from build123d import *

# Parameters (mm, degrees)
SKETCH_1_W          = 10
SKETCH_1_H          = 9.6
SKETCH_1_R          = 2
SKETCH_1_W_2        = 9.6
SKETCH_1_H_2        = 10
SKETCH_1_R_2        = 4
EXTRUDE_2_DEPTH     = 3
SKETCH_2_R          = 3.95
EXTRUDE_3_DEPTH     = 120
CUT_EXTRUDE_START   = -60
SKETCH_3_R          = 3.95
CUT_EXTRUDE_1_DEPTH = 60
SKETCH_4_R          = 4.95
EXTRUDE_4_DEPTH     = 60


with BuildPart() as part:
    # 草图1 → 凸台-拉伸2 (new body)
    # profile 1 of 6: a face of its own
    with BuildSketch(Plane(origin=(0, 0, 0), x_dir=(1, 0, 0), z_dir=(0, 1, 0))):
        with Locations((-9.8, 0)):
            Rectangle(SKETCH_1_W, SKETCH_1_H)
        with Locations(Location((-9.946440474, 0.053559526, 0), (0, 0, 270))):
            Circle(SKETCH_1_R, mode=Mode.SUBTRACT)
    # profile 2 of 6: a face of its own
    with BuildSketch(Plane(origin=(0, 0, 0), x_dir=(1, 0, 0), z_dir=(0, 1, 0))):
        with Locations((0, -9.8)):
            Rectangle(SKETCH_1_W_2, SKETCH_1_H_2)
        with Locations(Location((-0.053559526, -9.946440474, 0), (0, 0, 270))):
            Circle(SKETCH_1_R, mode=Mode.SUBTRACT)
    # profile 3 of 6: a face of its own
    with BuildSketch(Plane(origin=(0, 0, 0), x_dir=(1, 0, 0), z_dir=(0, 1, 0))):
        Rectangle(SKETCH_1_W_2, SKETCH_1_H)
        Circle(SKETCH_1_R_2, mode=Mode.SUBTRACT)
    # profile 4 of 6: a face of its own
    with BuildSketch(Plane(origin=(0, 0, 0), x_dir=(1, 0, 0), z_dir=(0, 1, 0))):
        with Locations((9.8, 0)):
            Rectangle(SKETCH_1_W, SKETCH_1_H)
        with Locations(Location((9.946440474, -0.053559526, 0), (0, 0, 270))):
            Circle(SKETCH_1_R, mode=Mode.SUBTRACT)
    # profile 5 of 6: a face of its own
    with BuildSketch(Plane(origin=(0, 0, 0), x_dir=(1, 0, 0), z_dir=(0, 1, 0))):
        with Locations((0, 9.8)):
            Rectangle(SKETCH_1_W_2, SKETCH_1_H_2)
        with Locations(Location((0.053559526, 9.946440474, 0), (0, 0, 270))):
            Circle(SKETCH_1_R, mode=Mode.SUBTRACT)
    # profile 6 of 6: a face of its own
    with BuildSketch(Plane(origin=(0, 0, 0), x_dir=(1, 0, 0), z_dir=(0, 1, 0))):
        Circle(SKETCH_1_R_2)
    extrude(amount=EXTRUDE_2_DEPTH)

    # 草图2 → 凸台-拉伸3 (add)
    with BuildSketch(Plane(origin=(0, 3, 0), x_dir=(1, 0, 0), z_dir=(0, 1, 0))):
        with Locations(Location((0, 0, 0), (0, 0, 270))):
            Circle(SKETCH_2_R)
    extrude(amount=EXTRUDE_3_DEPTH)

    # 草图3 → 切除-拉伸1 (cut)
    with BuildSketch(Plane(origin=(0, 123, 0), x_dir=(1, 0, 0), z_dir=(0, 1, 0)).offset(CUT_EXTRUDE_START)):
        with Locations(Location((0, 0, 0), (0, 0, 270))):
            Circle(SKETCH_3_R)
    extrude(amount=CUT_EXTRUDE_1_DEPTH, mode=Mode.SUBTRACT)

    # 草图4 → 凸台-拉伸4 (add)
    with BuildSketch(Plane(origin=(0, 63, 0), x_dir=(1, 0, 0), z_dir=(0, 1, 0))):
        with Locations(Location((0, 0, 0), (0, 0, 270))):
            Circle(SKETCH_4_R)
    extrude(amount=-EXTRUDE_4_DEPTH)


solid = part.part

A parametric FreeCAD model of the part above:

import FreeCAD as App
import Part
import Sketcher

V = App.Vector


def add_polygon(sketch, points):
    """Adds a closed chain of lines whose ends are joined by coincident constraints."""
    first, n = sketch.GeometryCount, len(points)
    for a, b in zip(points, points[1:] + points[:1]):
        sketch.addGeometry(Part.LineSegment(App.Vector(*a, 0), App.Vector(*b, 0)), False)
    for i in range(n):
        sketch.addConstraint(Sketcher.Constraint("Coincident", first + i, 2, first + (i + 1) % n, 1))

doc = App.newDocument("Part")
params = doc.addObject("Spreadsheet::Sheet", "Params")
for row, (alias, value) in enumerate([
    ("sketch1_diameter", "4 mm"),
    ("sketch1_width", "10 mm"),
    ("sketch1_width2", "9.6 mm"),
    ("pad1_length", "3 mm"),
    ("sketch2_diameter", "7.9 mm"),
    ("pad2_length", "120 mm"),
    ("sketch3_diameter", "7.9 mm"),
    ("pocket1_length", "60 mm"),
    ("sketch4_diameter", "9.9 mm"),
    ("pad3_length", "60 mm"),
], start=1):
    params.set(f"A{row}", alias)
    params.set(f"B{row}", "=" + value)
    params.setAlias(f"B{row}", alias)

body = doc.addObject("PartDesign::Body", "Body")

# Sketch on XZ plane
sketch1 = doc.addObject("Sketcher::SketchObject", "Sketch")
body.addObject(sketch1)
sketch1.AttachmentSupport = (doc.XZ_Plane, [""])
sketch1.MapMode = "FlatFace"
add_polygon(sketch1, [(-14.8, -4.8), (-14.8, 4.8), (-4.8, 4.8), (-4.8, 14.8), (4.8, 14.8), (4.8, 4.8), (14.8, 4.8), (14.8, -4.8), (4.8, -4.8), (4.8, -14.8), (-4.8, -14.8), (-4.8, -4.8)])  # lines 0-11
sketch1.addGeometry(Part.Circle(V(-9.9, -0.1, 0), V(0, 0, 1), 2), False)  # 12
sketch1.addGeometry(Part.Circle(V(-0.1, 9.9, 0), V(0, 0, 1), 2), False)  # 13
sketch1.addGeometry(Part.Circle(V(0.1, -9.9, 0), V(0, 0, 1), 2), False)  # 14
sketch1.addGeometry(Part.Circle(V(9.9, 0.1, 0), V(0, 0, 1), 2), False)  # 15
sketch1.addConstraint([
    Sketcher.Constraint("Vertical", 0),
    Sketcher.Constraint("Horizontal", 1),
    Sketcher.Constraint("Vertical", 2),
    Sketcher.Constraint("Horizontal", 3),
    Sketcher.Constraint("Vertical", 4),
    Sketcher.Constraint("Horizontal", 5),
    Sketcher.Constraint("Vertical", 6),
    Sketcher.Constraint("Horizontal", 7),
    Sketcher.Constraint("Vertical", 8),
    Sketcher.Constraint("Horizontal", 9),
    Sketcher.Constraint("Vertical", 10),
    Sketcher.Constraint("Horizontal", 11),
    Sketcher.Constraint("Equal", 12, 13),
    Sketcher.Constraint("Equal", 13, 14),
    Sketcher.Constraint("Equal", 14, 15),
    Sketcher.Constraint("Symmetric", 13, 3, 14, 3, -1, 1),
    Sketcher.Constraint("Symmetric", 12, 3, 15, 3, -1, 1),
    Sketcher.Constraint("Symmetric", 0, 2, 6, 2, -1, 1),
    Sketcher.Constraint("Symmetric", 2, 2, 8, 2, -1, 1),
    Sketcher.Constraint("Symmetric", 4, 2, 10, 2, -1, 1),
    Sketcher.Constraint("Symmetric", 1, 2, 4, 2, -2),
    Sketcher.Constraint("Equal", 9, 0),
    Sketcher.Constraint("Equal", 11, 2),
    Sketcher.Constraint("Diameter", 12, 4.0),
    Sketcher.Constraint("DistanceX", 1, 1, 1, 2, 10.0),
    Sketcher.Constraint("DistanceX", 3, 1, 3, 2, 9.6),
    Sketcher.Constraint("DistanceY", 12, 3, 13, 3, 10.0),
    Sketcher.Constraint("DistanceX", 12, 3, 14, 3, 10.0),
    Sketcher.Constraint("DistanceX", 12, 3, -1, 1, 9.94644),
    Sketcher.Constraint("DistanceY", 12, 3, -1, 1, 0.05356),
])
sketch1.setExpression("Constraints[35]", "Params.sketch1_diameter")
sketch1.setExpression("Constraints[36]", "Params.sketch1_width")
sketch1.setExpression("Constraints[37]", "Params.sketch1_width2")
pad1 = doc.addObject("PartDesign::Pad", "Pad")
body.addObject(pad1)
pad1.Profile = sketch1
pad1.setExpression("Length", "Params.pad1_length")
pad1.Reversed = True

# Sketch on XZ plane
sketch2 = doc.addObject("Sketcher::SketchObject", "Sketch001")
body.addObject(sketch2)
sketch2.AttachmentSupport = (doc.XZ_Plane, [""])
sketch2.MapMode = "FlatFace"
sketch2.AttachmentOffset = App.Placement(V(0, 0, -3), App.Rotation())
sketch2.addGeometry(Part.Circle(V(0, 0, 0), V(0, 0, 1), 4), False)
sketch2.addConstraint([
    Sketcher.Constraint("Coincident", 0, 3, -1, 1),
    Sketcher.Constraint("Diameter", 0, 7.9),
])
sketch2.setExpression("Constraints[1]", "Params.sketch2_diameter")
pad2 = doc.addObject("PartDesign::Pad", "Pad001")
body.addObject(pad2)
pad2.Profile = sketch2
pad2.setExpression("Length", "Params.pad2_length")
pad2.Reversed = True

# Sketch on XZ plane
sketch3 = doc.addObject("Sketcher::SketchObject", "Sketch002")
body.addObject(sketch3)
sketch3.AttachmentSupport = (doc.XZ_Plane, [""])
sketch3.MapMode = "FlatFace"
sketch3.AttachmentOffset = App.Placement(V(0, 0, -63), App.Rotation())
sketch3.addGeometry(Part.Circle(V(0, 0, 0), V(0, 0, 1), 4), False)
sketch3.addConstraint([
    Sketcher.Constraint("Coincident", 0, 3, -1, 1),
    Sketcher.Constraint("Diameter", 0, 7.9),
])
sketch3.setExpression("Constraints[1]", "Params.sketch3_diameter")
pocket1 = doc.addObject("PartDesign::Pocket", "Pocket")
body.addObject(pocket1)
pocket1.Profile = sketch3
pocket1.setExpression("Length", "Params.pocket1_length")

# Sketch on XZ plane
sketch4 = doc.addObject("Sketcher::SketchObject", "Sketch003")
body.addObject(sketch4)
sketch4.AttachmentSupport = (doc.XZ_Plane, [""])
sketch4.MapMode = "FlatFace"
sketch4.AttachmentOffset = App.Placement(V(0, 0, -63), App.Rotation())
sketch4.addGeometry(Part.Circle(V(0, 0, 0), V(0, 0, 1), 5), False)
sketch4.addConstraint([
    Sketcher.Constraint("Coincident", 0, 3, -1, 1),
    Sketcher.Constraint("Diameter", 0, 9.9),
])
sketch4.setExpression("Constraints[1]", "Params.sketch4_diameter")
pad3 = doc.addObject("PartDesign::Pad", "Pad002")
body.addObject(pad3)
pad3.Profile = sketch4
pad3.setExpression("Length", "Params.pad3_length")

doc.recompute()
